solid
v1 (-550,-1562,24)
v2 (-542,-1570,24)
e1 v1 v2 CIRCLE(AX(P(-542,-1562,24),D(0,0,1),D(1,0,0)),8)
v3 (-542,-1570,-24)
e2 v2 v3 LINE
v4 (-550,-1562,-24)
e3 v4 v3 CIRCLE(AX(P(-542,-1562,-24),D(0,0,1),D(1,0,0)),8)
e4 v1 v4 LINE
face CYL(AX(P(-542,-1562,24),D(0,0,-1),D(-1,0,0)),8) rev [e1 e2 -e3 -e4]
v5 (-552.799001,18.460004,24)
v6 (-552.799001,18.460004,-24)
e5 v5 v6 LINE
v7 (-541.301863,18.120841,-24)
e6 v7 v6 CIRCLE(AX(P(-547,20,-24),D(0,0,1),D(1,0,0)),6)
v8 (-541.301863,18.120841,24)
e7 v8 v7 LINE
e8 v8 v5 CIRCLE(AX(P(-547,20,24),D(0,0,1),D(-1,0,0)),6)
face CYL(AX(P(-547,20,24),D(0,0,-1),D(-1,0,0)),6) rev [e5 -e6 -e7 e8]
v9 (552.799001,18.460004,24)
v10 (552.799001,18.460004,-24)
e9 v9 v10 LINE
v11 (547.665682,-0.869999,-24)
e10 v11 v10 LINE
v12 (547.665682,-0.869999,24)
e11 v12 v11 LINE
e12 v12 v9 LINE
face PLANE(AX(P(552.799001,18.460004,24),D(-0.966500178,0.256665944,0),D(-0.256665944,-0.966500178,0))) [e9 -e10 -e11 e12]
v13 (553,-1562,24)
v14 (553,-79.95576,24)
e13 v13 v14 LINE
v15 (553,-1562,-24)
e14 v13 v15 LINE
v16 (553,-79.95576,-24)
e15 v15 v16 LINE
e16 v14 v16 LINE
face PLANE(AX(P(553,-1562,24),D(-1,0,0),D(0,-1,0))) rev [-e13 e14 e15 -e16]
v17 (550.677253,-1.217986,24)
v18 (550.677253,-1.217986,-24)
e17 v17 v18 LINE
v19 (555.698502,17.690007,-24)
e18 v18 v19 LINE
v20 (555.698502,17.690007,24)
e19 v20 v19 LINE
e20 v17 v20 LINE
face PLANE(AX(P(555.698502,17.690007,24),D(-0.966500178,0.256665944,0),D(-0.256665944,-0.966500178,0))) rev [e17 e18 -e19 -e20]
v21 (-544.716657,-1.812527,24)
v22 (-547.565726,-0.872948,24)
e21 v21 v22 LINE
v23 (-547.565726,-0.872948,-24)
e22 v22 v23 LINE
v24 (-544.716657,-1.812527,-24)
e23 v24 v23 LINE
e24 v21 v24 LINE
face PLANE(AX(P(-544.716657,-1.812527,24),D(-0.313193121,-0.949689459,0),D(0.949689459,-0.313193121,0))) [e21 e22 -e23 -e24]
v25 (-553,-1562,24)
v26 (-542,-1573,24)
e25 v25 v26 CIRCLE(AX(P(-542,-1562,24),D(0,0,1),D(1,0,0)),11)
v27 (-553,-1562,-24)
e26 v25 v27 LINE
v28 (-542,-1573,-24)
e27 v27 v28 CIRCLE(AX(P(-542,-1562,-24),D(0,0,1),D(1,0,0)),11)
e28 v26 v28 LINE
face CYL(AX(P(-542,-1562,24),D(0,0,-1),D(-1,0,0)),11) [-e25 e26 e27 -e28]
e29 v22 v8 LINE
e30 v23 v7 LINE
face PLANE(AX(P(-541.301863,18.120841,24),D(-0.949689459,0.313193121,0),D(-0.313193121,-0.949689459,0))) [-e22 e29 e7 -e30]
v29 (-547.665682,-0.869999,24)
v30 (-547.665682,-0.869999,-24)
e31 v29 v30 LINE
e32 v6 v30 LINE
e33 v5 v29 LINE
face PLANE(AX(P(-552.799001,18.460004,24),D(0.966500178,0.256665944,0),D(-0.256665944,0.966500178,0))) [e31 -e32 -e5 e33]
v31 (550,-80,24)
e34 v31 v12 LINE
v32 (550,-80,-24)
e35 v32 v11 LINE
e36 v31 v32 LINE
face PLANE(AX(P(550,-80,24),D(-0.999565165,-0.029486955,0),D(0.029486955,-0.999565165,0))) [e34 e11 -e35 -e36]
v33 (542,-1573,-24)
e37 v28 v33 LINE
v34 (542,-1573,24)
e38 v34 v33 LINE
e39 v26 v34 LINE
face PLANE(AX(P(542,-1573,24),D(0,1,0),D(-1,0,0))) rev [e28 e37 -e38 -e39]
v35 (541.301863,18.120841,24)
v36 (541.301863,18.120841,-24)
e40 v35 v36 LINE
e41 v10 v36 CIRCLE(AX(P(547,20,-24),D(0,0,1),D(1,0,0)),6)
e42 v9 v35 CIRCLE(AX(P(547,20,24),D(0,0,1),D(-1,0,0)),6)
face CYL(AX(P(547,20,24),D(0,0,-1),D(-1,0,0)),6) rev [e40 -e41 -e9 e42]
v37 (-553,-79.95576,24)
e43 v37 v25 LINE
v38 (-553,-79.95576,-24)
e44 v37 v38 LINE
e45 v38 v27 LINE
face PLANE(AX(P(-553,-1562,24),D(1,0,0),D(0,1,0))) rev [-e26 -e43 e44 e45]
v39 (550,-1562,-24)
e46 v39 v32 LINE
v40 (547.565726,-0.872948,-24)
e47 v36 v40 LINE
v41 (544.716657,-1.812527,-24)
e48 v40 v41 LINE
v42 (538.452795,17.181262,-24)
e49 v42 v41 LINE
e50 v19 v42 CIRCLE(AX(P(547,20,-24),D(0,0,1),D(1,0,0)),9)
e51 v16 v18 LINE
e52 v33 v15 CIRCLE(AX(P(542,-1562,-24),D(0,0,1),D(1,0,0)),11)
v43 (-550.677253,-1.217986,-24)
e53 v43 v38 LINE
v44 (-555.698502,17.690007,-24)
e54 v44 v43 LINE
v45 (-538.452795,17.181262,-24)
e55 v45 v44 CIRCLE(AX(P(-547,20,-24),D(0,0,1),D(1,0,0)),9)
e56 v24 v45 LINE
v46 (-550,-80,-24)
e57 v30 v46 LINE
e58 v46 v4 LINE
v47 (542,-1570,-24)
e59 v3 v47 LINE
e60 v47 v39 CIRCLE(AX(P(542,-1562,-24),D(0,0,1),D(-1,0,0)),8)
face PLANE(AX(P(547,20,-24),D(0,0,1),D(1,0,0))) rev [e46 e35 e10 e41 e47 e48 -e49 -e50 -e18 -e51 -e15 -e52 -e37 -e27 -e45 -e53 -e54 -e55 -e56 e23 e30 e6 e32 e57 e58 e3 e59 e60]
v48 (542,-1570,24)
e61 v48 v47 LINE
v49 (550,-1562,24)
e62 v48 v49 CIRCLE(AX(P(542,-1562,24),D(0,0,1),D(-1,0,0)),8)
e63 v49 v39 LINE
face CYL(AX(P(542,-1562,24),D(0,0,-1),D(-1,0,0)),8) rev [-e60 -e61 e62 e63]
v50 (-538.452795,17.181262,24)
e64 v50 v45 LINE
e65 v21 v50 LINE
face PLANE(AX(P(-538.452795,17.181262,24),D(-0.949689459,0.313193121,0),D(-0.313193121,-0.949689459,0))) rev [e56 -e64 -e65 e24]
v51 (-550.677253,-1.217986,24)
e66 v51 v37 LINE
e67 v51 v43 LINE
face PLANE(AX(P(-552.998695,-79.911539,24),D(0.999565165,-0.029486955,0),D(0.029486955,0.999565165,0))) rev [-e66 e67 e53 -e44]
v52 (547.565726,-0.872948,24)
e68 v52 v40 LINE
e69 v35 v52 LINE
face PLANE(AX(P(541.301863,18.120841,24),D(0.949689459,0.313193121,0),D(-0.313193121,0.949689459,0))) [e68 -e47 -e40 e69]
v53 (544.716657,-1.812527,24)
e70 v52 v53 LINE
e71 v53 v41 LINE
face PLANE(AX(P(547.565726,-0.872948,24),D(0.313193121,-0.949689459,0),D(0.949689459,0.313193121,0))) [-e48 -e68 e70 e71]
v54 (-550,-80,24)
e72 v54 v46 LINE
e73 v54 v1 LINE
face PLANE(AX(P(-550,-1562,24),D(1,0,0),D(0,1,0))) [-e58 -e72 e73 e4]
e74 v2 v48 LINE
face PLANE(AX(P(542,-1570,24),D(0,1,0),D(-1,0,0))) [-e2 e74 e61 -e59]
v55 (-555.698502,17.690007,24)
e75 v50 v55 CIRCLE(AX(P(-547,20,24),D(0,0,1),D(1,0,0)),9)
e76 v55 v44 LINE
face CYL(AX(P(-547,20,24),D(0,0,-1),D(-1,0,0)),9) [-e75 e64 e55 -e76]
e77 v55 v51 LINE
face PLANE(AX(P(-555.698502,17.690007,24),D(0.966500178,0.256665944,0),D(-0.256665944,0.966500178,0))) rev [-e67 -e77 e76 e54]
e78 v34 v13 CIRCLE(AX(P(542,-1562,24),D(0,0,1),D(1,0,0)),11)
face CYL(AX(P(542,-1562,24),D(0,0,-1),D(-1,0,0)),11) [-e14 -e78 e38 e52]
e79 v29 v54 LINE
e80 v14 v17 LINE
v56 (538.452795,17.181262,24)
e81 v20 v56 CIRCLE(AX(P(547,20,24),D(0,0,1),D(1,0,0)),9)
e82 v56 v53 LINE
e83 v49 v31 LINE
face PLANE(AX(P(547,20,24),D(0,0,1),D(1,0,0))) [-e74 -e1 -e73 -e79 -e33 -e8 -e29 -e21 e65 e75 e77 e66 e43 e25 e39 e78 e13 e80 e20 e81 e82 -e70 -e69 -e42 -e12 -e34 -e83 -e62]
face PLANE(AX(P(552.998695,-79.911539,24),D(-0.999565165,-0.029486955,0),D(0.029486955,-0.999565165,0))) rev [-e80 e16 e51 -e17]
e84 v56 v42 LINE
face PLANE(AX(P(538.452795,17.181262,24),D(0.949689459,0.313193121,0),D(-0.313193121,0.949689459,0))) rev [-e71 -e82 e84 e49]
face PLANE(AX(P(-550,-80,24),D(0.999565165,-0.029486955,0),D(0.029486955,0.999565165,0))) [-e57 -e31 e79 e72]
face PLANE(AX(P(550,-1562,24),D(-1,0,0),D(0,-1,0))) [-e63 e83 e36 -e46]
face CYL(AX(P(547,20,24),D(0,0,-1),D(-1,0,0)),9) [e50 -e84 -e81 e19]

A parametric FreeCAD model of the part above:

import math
import FreeCAD as App
import Part
import Sketcher
from FreeCAD import Vector
Q = App.Units.Quantity

doc = App.newDocument("Part")
params = doc.addObject("Spreadsheet::Sheet", "Params")
for row, (alias, value) in enumerate([
    ("sketch1_radius", "6 mm"),
    ("sketch1_radius2", "8 mm"),
    ("sketch1_radius3", "9 mm"),
    ("sketch1_radius4", "11 mm"),
    ("sketch1_width", "1084 mm"),
    ("pad1_length", "48 mm"),
], start=1):
    params.set(f"A{row}", alias)
    params.set(f"B{row}", "=" + value)
    params.setAlias(f"B{row}", alias)

body = doc.addObject("PartDesign::Body", "Body")

sketch1 = body.newObject("Sketcher::SketchObject", "Sketch")
sketch1.AttachmentSupport = (doc.getObject("XY_Plane"), [""])
sketch1.MapMode = "FlatFace"
sketch1.addGeometry(Part.LineSegment(Vector(547.6, -0.9, 0), Vector(541.3, 18.1, 0)), False)
sketch1.addGeometry(Part.ArcOfCircle(Part.Circle(Vector(547, 20, 0), Vector(0, 0, 1), 6), math.radians(90), math.radians(198)), False)
sketch1.addGeometry(Part.ArcOfCircle(Part.Circle(Vector(547, 20, 0), Vector(0, 0, 1), 6), math.radians(-15), math.radians(90)), False)
sketch1.addGeometry(Part.LineSegment(Vector(552.8, 18.5, 0), Vector(547.7, -0.9, 0)), False)
sketch1.addGeometry(Part.LineSegment(Vector(547.7, -0.9, 0), Vector(550, -80, 0)), False)
sketch1.addGeometry(Part.LineSegment(Vector(550, -80, 0), Vector(550, -1562, 0)), False)
sketch1.addGeometry(Part.ArcOfCircle(Part.Circle(Vector(542, -1562, 0), Vector(0, 0, 1), 8), math.radians(-90), math.radians(0)), False)
sketch1.addGeometry(Part.LineSegment(Vector(542, -1570, 0), Vector(-542, -1570, 0)), False)
sketch1.addGeometry(Part.ArcOfCircle(Part.Circle(Vector(-542, -1562, 0), Vector(0, 0, 1), 8), math.radians(-180), math.radians(-90)), False)
sketch1.addGeometry(Part.LineSegment(Vector(-550, -1562, 0), Vector(-550, -80, 0)), False)
sketch1.addGeometry(Part.LineSegment(Vector(-550, -80, 0), Vector(-547.7, -0.9, 0)), False)
sketch1.addGeometry(Part.LineSegment(Vector(-547.7, -0.9, 0), Vector(-552.8, 18.5, 0)), False)
sketch1.addGeometry(Part.ArcOfCircle(Part.Circle(Vector(-547, 20, 0), Vector(0, 0, 1), 6), math.radians(90), math.radians(195)), False)
sketch1.addGeometry(Part.ArcOfCircle(Part.Circle(Vector(-547, 20, 0), Vector(0, 0, 1), 6), math.radians(-18), math.radians(90)), False)
sketch1.addGeometry(Part.LineSegment(Vector(-541.3, 18.1, 0), Vector(-547.6, -0.9, 0)), False)
sketch1.addGeometry(Part.LineSegment(Vector(-547.6, -0.9, 0), Vector(-544.7, -1.8, 0)), False)
sketch1.addGeometry(Part.LineSegment(Vector(-544.7, -1.8, 0), Vector(-538.5, 17.2, 0)), False)
sketch1.addGeometry(Part.ArcOfCircle(Part.Circle(Vector(-547, 20, 0), Vector(0, 0, 1), 9), math.radians(-18), math.radians(90)), False)
sketch1.addGeometry(Part.ArcOfCircle(Part.Circle(Vector(-547, 20, 0), Vector(0, 0, 1), 9), math.radians(90), math.radians(195)), False)
sketch1.addGeometry(Part.LineSegment(Vector(-555.7, 17.7, 0), Vector(-550.7, -1.2, 0)), False)
sketch1.addGeometry(Part.LineSegment(Vector(-550.7, -1.2, 0), Vector(-553, -80, 0)), False)
sketch1.addGeometry(Part.LineSegment(Vector(-553, -80, 0), Vector(-553, -1562, 0)), False)
sketch1.addGeometry(Part.ArcOfCircle(Part.Circle(Vector(-542, -1562, 0), Vector(0, 0, 1), 11), math.radians(180), math.radians(270)), False)
sketch1.addGeometry(Part.LineSegment(Vector(-542, -1573, 0), Vector(542, -1573, 0)), False)
sketch1.addGeometry(Part.ArcOfCircle(Part.Circle(Vector(542, -1562, 0), Vector(0, 0, 1), 11), math.radians(-90), math.radians(0)), False)
sketch1.addGeometry(Part.LineSegment(Vector(553, -1562, 0), Vector(553, -80, 0)), False)
sketch1.addGeometry(Part.LineSegment(Vector(553, -80, 0), Vector(550.7, -1.2, 0)), False)
sketch1.addGeometry(Part.LineSegment(Vector(550.7, -1.2, 0), Vector(555.7, 17.7, 0)), False)
sketch1.addGeometry(Part.ArcOfCircle(Part.Circle(Vector(547, 20, 0), Vector(0, 0, 1), 9), math.radians(-15), math.radians(90)), False)
sketch1.addGeometry(Part.ArcOfCircle(Part.Circle(Vector(547, 20, 0), Vector(0, 0, 1), 9), math.radians(90), math.radians(198)), False)
sketch1.addGeometry(Part.LineSegment(Vector(538.5, 17.2, 0), Vector(544.7, -1.8, 0)), False)
sketch1.addGeometry(Part.LineSegment(Vector(544.7, -1.8, 0), Vector(547.6, -0.9, 0)), False)
sketch1.addConstraint(Sketcher.Constraint("Tangent", 0, 2, 1, 2))
sketch1.addConstraint(Sketcher.Constraint("Tangent", 1, 1, 2, 2))
sketch1.addConstraint(Sketcher.Constraint("Tangent", 2, 1, 3, 1))
sketch1.addConstraint(Sketcher.Constraint("Coincident", 3, 2, 4, 1))
sketch1.addConstraint(Sketcher.Constraint("Coincident", 4, 2, 5, 1))
sketch1.addConstraint(Sketcher.Constraint("Tangent", 5, 2, 6, 2))
sketch1.addConstraint(Sketcher.Constraint("Tangent", 6, 1, 7, 1))
sketch1.addConstraint(Sketcher.Constraint("Tangent", 7, 2, 8, 2))
sketch1.addConstraint(Sketcher.Constraint("Tangent", 8, 1, 9, 1))
sketch1.addConstraint(Sketcher.Constraint("Coincident", 9, 2, 10, 1))
sketch1.addConstraint(Sketcher.Constraint("Coincident", 10, 2, 11, 1))
sketch1.addConstraint(Sketcher.Constraint("Tangent", 11, 2, 12, 2))
sketch1.addConstraint(Sketcher.Constraint("Tangent", 12, 1, 13, 2))
sketch1.addConstraint(Sketcher.Constraint("Tangent", 13, 1, 14, 1))
sketch1.addConstraint(Sketcher.Constraint("Coincident", 14, 2, 15, 1))
sketch1.addConstraint(Sketcher.Constraint("Coincident", 15, 2, 16, 1))
sketch1.addConstraint(Sketcher.Constraint("Tangent", 16, 2, 17, 1))
sketch1.addConstraint(Sketcher.Constraint("Tangent", 17, 2, 18, 1))
sketch1.addConstraint(Sketcher.Constraint("Tangent", 18, 2, 19, 1))
sketch1.addConstraint(Sketcher.Constraint("Coincident", 19, 2, 20, 1))
sketch1.addConstraint(Sketcher.Constraint("Coincident", 20, 2, 21, 1))
sketch1.addConstraint(Sketcher.Constraint("Tangent", 21, 2, 22, 1))
sketch1.addConstraint(Sketcher.Constraint("Tangent", 22, 2, 23, 1))
sketch1.addConstraint(Sketcher.Constraint("Tangent", 23, 2, 24, 1))
sketch1.addConstraint(Sketcher.Constraint("Tangent", 24, 2, 25, 1))
sketch1.addConstraint(Sketcher.Constraint("Coincident", 25, 2, 26, 1))
sketch1.addConstraint(Sketcher.Constraint("Coincident", 26, 2, 27, 1))
sketch1.addConstraint(Sketcher.Constraint("Tangent", 27, 2, 28, 1))
sketch1.addConstraint(Sketcher.Constraint("Tangent", 28, 2, 29, 1))
sketch1.addConstraint(Sketcher.Constraint("Tangent", 29, 2, 30, 1))
sketch1.addConstraint(Sketcher.Constraint("Coincident", 30, 2, 31, 1))
sketch1.addConstraint(Sketcher.Constraint("Coincident", 31, 2, 0, 1))
sketch1.addConstraint(Sketcher.Constraint("Vertical", 5))
sketch1.addConstraint(Sketcher.Constraint("Horizontal", 7))
sketch1.addConstraint(Sketcher.Constraint("Vertical", 9))
sketch1.addConstraint(Sketcher.Constraint("Vertical", 21))
sketch1.addConstraint(Sketcher.Constraint("Horizontal", 23))
sketch1.addConstraint(Sketcher.Constraint("Vertical", 25))
sketch1.addConstraint(Sketcher.Constraint("Coincident", 17, 3, 12, 3))
sketch1.addConstraint(Sketcher.Constraint("Coincident", 22, 3, 8, 3))
sketch1.addConstraint(Sketcher.Constraint("Coincident", 24, 3, 6, 3))
sketch1.addConstraint(Sketcher.Constraint("Coincident", 28, 3, 1, 3))
sketch1.addConstraint(Sketcher.Constraint("Equal", 1, 2))
sketch1.addConstraint(Sketcher.Constraint("Equal", 6, 8))
sketch1.addConstraint(Sketcher.Constraint("Equal", 2, 12))
sketch1.addConstraint(Sketcher.Constraint("Equal", 12, 13))
sketch1.addConstraint(Sketcher.Constraint("Equal", 17, 18))
sketch1.addConstraint(Sketcher.Constraint("Equal", 18, 28))
sketch1.addConstraint(Sketcher.Constraint("Equal", 28, 29))
sketch1.addConstraint(Sketcher.Constraint("Symmetric", 1, 3, 12, 3, -2))
sketch1.addConstraint(Sketcher.Constraint("Symmetric", 4, 2, 9, 2, -2))
sketch1.addConstraint(Sketcher.Constraint("Symmetric", 3, 2, 10, 2, -2))
sketch1.addConstraint(Sketcher.Constraint("Symmetric", 19, 2, 26, 2, -2))
sketch1.addConstraint(Sketcher.Constraint("Symmetric", 15, 2, 30, 2, -2))
sketch1.addConstraint(Sketcher.Constraint("Symmetric", 14, 2, 31, 2, -2))
sketch1.addConstraint(Sketcher.Constraint("Perpendicular", 14, 15))
sketch1.addConstraint(Sketcher.Constraint("Perpendicular", 15, 16))
sketch1.addConstraint(Sketcher.Constraint("Parallel", 11, 19))
sketch1.addConstraint(Sketcher.Constraint("Parallel", 10, 20))
sketch1.addConstraint(Sketcher.Constraint("Parallel", 4, 26))
sketch1.addConstraint(Sketcher.Constraint("Vertical", 29, 3, 1, 1))
sketch1.addConstraint(Sketcher.Constraint("Vertical", 18, 3, 12, 1))
sketch1.addConstraint(Sketcher.Constraint("Vertical", 12, 1, 17, 2))
sketch1.addConstraint(Sketcher.Constraint("Vertical", 1, 1, 28, 2))
sketch1.addConstraint(Sketcher.Constraint("Equal", 0, 3))
sketch1.addConstraint(Sketcher.Constraint("Radius", 1, Q("6 mm")))
sketch1.addConstraint(Sketcher.Constraint("Radius", 6, Q("8 mm")))
sketch1.addConstraint(Sketcher.Constraint("Radius", 17, Q("9 mm")))
sketch1.addConstraint(Sketcher.Constraint("Radius", 22, Q("11 mm")))
sketch1.addConstraint(Sketcher.Constraint("DistanceX", 7, 2, 7, 1, Q("1084 mm")))
sketch1.addConstraint(Sketcher.Constraint("DistanceY", 5, 2, 5, 1, Q("1482 mm")))
sketch1.addConstraint(Sketcher.Constraint("Distance", 0, Q("20 mm")))
sketch1.addConstraint(Sketcher.Constraint("DistanceX", -1, 1, 1, 3, Q("547 mm")))
sketch1.addConstraint(Sketcher.Constraint("DistanceY", -1, 1, 1, 3, Q("20 mm")))
sketch1.addConstraint(Sketcher.Constraint("DistanceY", 6, 3, -1, 1, Q("1562 mm")))
sketch1.addConstraint(Sketcher.Constraint("DistanceY", 3, 2, -1, 1, Q("0.869999 mm")))
sketch1.addConstraint(Sketcher.Constraint("DistanceY", 21, 2, 21, 1, Q("1482.04424 mm")))
sketch1.addConstraint(Sketcher.Constraint("DistanceY", 25, 2, 0, 2, Q("98.076601 mm")))
sketch1.setExpression("Constraints[65]", "Params.sketch1_radius")
sketch1.setExpression("Constraints[66]", "Params.sketch1_radius2")
sketch1.setExpression("Constraints[67]", "Params.sketch1_radius3")
sketch1.setExpression("Constraints[68]", "Params.sketch1_radius4")
sketch1.setExpression("Constraints[69]", "Params.sketch1_width")
pad1 = body.newObject("PartDesign::Pad", "Pad")
pad1.Profile = sketch1
pad1.setExpression("Length", "Params.pad1_length")
pad1.Midplane = True

doc.recompute()
